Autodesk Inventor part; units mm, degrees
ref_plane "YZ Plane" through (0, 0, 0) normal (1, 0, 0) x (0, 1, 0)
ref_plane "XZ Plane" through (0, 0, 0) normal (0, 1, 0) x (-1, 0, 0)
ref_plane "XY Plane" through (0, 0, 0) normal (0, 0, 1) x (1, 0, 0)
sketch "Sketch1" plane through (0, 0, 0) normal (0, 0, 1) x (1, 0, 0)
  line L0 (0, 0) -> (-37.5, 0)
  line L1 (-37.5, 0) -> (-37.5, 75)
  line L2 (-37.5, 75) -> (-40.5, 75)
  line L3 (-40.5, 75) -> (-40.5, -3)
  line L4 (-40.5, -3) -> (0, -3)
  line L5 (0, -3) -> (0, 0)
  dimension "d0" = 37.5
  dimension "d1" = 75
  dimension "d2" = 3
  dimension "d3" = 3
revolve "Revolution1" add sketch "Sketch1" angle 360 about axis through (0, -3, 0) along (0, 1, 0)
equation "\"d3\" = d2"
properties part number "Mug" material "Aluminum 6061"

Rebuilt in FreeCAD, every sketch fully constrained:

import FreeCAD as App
import Part
import Sketcher
Q = App.Units.Quantity

doc = App.newDocument("Part")
body = doc.addObject("PartDesign::Body", "Body")

# Sketch on XY plane
sketch1 = doc.addObject("Sketcher::SketchObject", "Sketch")
body.addObject(sketch1)
sketch1.AttachmentSupport = (doc.XY_Plane, [""])
sketch1.MapMode = "FlatFace"
sketch1.addGeometry([
    Part.LineSegment(App.Vector(0, -3, 0), App.Vector(0, 0, 0)),  # 0
    Part.LineSegment(App.Vector(0, 0, 0), App.Vector(-37.5, 0, 0)),  # 1
    Part.LineSegment(App.Vector(-37.5, 0, 0), App.Vector(-37.5, 75, 0)),  # 2
    Part.LineSegment(App.Vector(-37.5, 75, 0), App.Vector(-40.5, 75, 0)),  # 3
    Part.LineSegment(App.Vector(-40.5, 75, 0), App.Vector(-40.5, -3, 0)),  # 4
    Part.LineSegment(App.Vector(-40.5, -3, 0), App.Vector(0, -3, 0)),  # 5
], False)
sketch1.addConstraint([
    Sketcher.Constraint("Coincident", 0, 2, 1, 1),
    Sketcher.Constraint("Coincident", 1, 2, 2, 1),
    Sketcher.Constraint("Coincident", 2, 2, 3, 1),
    Sketcher.Constraint("Coincident", 3, 2, 4, 1),
    Sketcher.Constraint("Coincident", 4, 2, 5, 1),
    Sketcher.Constraint("Coincident", 5, 2, 0, 1),
    Sketcher.Constraint("Vertical", 0),
    Sketcher.Constraint("Horizontal", 1),
    Sketcher.Constraint("Vertical", 2),
    Sketcher.Constraint("Horizontal", 3),
    Sketcher.Constraint("Vertical", 4),
    Sketcher.Constraint("Horizontal", 5),
    Sketcher.Constraint("Coincident", 0, 2, -1, 1),
    Sketcher.Constraint("Equal", 3, 0),
    Sketcher.Constraint("DistanceX", 3, 2, 3, 1, Q("3 mm")),
    Sketcher.Constraint("DistanceY", 2, 1, 2, 2, Q("75 mm")),
    Sketcher.Constraint("DistanceX", 1, 2, 1, 1, Q("37.5 mm")),
])
revolution = doc.addObject("PartDesign::Revolution", "Revolution")
body.addObject(revolution)
revolution.Profile = sketch1
revolution.ReferenceAxis = (sketch1, ["V_Axis"])
revolution.Angle = 360

doc.recompute()
